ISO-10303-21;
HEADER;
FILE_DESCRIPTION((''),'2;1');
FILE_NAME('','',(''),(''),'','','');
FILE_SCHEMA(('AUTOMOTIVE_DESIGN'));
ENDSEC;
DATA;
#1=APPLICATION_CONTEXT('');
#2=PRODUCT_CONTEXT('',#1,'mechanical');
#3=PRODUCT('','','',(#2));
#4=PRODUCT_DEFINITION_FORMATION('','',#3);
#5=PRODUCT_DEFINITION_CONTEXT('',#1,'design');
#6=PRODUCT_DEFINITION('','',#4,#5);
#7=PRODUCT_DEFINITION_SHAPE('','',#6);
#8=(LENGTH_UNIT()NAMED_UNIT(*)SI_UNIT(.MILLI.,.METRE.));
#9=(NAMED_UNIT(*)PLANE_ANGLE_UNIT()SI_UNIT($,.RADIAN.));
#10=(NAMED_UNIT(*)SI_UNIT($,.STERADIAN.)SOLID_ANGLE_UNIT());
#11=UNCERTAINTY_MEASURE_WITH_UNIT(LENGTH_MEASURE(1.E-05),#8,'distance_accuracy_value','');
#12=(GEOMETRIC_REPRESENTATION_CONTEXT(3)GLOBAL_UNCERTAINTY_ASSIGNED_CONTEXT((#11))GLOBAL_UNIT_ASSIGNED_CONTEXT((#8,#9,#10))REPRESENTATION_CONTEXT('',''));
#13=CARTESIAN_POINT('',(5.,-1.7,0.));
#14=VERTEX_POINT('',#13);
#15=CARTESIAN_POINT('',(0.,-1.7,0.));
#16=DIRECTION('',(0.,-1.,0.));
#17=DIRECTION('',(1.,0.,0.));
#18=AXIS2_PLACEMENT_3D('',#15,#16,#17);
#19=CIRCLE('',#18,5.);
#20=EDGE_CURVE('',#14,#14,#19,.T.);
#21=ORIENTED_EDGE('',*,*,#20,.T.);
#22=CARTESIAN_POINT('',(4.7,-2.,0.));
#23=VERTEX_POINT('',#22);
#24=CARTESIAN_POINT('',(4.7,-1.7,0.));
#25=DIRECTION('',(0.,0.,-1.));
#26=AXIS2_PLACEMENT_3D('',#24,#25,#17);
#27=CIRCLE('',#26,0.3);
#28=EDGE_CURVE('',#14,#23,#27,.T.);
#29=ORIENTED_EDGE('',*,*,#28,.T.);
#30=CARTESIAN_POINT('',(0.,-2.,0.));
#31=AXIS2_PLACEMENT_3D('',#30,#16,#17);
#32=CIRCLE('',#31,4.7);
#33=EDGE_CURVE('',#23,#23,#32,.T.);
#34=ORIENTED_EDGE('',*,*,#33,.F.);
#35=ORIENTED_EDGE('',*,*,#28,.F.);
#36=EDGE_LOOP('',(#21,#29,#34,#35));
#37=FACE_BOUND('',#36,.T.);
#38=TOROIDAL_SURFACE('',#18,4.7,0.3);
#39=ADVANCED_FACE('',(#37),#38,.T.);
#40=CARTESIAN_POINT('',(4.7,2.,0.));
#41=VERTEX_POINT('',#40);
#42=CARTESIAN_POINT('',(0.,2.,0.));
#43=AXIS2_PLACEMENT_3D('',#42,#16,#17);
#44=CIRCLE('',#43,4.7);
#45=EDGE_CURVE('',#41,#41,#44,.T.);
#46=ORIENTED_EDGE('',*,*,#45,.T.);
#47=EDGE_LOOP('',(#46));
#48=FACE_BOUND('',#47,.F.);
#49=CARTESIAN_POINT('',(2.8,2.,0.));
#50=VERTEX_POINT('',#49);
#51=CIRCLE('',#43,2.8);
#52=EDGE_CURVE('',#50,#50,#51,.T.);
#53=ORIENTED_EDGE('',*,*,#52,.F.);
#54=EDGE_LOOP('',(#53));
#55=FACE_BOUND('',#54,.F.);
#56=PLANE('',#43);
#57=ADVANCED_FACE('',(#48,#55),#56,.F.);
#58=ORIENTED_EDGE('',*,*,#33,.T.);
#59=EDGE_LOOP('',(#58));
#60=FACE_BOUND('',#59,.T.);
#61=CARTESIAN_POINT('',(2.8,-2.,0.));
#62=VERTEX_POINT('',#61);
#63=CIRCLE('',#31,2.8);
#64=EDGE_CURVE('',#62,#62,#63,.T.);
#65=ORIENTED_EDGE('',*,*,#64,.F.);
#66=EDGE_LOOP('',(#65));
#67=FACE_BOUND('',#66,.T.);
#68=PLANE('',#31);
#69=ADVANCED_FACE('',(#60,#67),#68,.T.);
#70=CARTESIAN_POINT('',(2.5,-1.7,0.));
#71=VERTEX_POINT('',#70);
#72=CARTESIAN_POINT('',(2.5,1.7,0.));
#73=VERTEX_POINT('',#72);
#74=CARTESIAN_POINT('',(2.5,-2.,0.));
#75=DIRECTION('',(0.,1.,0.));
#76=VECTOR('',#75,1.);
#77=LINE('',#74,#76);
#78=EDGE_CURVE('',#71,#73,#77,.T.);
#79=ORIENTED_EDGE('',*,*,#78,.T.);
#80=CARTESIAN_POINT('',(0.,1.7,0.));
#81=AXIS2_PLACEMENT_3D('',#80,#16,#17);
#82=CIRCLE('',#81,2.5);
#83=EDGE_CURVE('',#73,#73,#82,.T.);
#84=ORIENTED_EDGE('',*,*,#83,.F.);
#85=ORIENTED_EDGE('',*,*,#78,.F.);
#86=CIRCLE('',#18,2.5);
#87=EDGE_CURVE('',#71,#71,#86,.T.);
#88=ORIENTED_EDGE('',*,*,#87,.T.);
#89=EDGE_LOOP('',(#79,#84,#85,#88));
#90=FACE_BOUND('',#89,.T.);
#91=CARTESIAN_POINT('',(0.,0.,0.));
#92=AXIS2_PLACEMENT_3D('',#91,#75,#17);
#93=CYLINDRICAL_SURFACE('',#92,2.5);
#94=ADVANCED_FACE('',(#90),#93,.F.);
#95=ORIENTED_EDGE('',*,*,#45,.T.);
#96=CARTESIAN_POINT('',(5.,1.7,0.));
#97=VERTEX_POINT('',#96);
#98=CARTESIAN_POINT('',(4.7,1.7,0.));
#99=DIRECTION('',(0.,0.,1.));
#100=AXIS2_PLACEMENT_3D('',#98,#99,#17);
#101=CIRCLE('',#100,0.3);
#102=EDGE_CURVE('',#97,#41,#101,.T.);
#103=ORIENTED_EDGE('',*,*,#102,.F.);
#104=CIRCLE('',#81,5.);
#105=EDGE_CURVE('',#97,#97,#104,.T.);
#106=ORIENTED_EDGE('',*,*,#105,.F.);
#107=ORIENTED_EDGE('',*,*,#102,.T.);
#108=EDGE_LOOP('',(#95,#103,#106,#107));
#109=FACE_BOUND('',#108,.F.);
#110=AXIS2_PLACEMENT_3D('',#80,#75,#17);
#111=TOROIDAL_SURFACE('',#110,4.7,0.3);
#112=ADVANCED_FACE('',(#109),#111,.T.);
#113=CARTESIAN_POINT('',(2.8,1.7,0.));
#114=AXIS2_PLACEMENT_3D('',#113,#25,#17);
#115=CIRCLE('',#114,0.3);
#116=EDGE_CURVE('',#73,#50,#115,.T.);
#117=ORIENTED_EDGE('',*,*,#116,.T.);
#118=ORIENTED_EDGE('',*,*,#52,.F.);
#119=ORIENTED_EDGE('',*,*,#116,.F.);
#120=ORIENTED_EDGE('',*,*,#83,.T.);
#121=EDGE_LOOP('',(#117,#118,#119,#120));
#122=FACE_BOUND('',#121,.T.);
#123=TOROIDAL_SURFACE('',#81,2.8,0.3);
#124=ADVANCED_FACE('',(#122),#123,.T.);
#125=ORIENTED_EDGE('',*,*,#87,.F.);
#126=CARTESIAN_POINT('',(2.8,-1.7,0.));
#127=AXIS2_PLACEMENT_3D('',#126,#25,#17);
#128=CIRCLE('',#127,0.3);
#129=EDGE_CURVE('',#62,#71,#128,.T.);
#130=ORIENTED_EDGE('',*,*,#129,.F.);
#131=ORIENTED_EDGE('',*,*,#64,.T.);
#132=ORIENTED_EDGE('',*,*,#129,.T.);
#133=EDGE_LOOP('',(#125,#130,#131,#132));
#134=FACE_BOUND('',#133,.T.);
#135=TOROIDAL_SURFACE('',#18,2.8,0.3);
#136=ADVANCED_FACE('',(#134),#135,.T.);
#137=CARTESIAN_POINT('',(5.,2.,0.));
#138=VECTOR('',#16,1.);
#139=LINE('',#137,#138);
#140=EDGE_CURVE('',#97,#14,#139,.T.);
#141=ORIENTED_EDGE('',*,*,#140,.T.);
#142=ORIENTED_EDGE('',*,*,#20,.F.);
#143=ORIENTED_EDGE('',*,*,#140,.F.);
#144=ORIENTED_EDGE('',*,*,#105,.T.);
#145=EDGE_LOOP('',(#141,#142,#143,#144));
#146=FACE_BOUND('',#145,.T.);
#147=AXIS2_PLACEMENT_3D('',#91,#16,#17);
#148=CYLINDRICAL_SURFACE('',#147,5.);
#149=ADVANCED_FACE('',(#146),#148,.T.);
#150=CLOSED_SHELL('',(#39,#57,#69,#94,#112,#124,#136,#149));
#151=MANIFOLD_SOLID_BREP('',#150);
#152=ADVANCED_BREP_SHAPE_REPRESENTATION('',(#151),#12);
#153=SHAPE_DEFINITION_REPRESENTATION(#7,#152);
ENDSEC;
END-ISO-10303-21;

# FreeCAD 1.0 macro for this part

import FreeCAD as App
import Part
import Sketcher

doc = App.newDocument("Part")
body = doc.addObject("PartDesign::Body", "Body")

# Sketch on XZ plane
sketch1 = body.newObject("Sketcher::SketchObject", "Sketch")
sketch1.AttachmentSupport = (doc.getObject("XZ_Plane"), [""])
sketch1.MapMode = "FlatFace"
sketch1.addGeometry(Part.Circle(App.Vector(0, 0, 0), App.Vector(0, 0, 1), 5), False)
sketch1.addGeometry(Part.Circle(App.Vector(0, 0, 0), App.Vector(0, 0, 1), 2.5), False)
sketch1.addConstraint(Sketcher.Constraint("Coincident", 0, 3, -1, 1))
sketch1.addConstraint(Sketcher.Constraint("Coincident", 1, 3, -1, 1))
sketch1.addConstraint(Sketcher.Constraint("Diameter", 0, 10.0))
sketch1.addConstraint(Sketcher.Constraint("Diameter", 1, 5.0))
pad1 = body.newObject("PartDesign::Pad", "Pad")
pad1.Profile = sketch1
pad1.Length = 4
pad1.Midplane = True
doc.recompute()

fillet = body.newObject("PartDesign::Fillet", "Fillet")
fillet.Base = (pad1, ["Edge1"])
fillet.UseAllEdges = True
fillet.Radius = 0.3

doc.recompute()
